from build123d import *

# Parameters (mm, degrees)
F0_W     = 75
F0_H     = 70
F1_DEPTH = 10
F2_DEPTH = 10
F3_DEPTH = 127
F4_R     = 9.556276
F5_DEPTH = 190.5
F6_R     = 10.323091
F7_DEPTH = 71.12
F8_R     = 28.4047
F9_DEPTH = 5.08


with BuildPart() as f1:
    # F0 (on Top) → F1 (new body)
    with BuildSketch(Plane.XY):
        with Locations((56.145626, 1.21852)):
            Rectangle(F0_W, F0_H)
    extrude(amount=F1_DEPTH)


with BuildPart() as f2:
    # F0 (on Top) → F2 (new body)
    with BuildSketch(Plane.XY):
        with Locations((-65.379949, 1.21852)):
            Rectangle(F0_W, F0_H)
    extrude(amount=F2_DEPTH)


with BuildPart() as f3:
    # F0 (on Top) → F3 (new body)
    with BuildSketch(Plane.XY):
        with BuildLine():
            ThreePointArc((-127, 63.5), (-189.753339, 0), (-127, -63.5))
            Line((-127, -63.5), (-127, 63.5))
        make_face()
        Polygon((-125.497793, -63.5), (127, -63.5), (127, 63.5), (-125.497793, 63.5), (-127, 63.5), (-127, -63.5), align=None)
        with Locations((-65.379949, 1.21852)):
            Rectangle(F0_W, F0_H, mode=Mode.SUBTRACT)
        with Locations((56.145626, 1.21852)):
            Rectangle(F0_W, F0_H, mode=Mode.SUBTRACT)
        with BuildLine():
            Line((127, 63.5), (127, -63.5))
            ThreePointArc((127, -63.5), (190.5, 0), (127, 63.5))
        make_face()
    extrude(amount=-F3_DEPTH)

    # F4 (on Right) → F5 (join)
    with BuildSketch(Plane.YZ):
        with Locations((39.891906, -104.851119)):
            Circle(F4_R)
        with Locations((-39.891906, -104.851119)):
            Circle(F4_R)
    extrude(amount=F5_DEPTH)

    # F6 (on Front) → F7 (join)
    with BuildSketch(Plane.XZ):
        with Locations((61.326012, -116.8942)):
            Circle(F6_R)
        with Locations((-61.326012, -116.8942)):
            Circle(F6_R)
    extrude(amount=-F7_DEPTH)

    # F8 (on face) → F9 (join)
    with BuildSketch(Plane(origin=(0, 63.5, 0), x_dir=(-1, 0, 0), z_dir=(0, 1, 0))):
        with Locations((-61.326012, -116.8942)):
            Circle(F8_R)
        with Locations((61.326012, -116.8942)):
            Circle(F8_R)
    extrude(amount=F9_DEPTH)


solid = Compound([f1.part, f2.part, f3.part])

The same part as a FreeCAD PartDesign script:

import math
import FreeCAD as App
import Part
import Sketcher
Q = App.Units.Quantity


def add_polygon(sketch, points):
    """Adds a closed chain of lines whose ends are joined by coincident constraints."""
    first, n = sketch.GeometryCount, len(points)
    for a, b in zip(points, points[1:] + points[:1]):
        sketch.addGeometry(Part.LineSegment(App.Vector(*a, 0), App.Vector(*b, 0)), False)
    for i in range(n):
        sketch.addConstraint(Sketcher.Constraint("Coincident", first + i, 2, first + (i + 1) % n, 1))

doc = App.newDocument("Part")
body = doc.addObject("PartDesign::Body", "Body")

# Sketch on XY plane
sketch1 = body.newObject("Sketcher::SketchObject", "Sketch")
sketch1.AttachmentSupport = (doc.getObject("XY_Plane"), [""])
sketch1.MapMode = "FlatFace"
add_polygon(sketch1, [(18.645626, 36.21852), (18.645626, -33.78148), (93.645626, -33.78148), (93.645626, 36.21852)])  # lines 0-3
sketch1.addConstraint([
    Sketcher.Constraint("Vertical", 0),
    Sketcher.Constraint("Horizontal", 1),
    Sketcher.Constraint("Vertical", 2),
    Sketcher.Constraint("Horizontal", 3),
    Sketcher.Constraint("DistanceX", 1, 1, 1, 2, Q("75 mm")),
    Sketcher.Constraint("DistanceY", 0, 2, 0, 1, Q("70 mm")),
    Sketcher.Constraint("DistanceY", 0, 2, -1, 1, Q("33.78148 mm")),
    Sketcher.Constraint("DistanceX", -1, 1, 0, 2, Q("18.645626 mm")),
])
pad1 = body.newObject("PartDesign::Pad", "Pad")
pad1.Profile = sketch1
pad1.Length = 10
body2 = doc.addObject("PartDesign::Body", "Body001")

# Sketch on XY plane
sketch2 = body2.newObject("Sketcher::SketchObject", "Sketch001")
sketch2.AttachmentSupport = (doc.getObject("XY_Plane001"), [""])
sketch2.MapMode = "FlatFace"
add_polygon(sketch2, [(-102.879949, 36.21852), (-102.879949, -33.78148), (-27.879949, -33.78148), (-27.879949, 36.21852)])  # lines 0-3
sketch2.addConstraint([
    Sketcher.Constraint("Vertical", 0),
    Sketcher.Constraint("Horizontal", 1),
    Sketcher.Constraint("Vertical", 2),
    Sketcher.Constraint("Horizontal", 3),
    Sketcher.Constraint("DistanceX", 1, 1, 1, 2, Q("75 mm")),
    Sketcher.Constraint("DistanceY", 0, 2, 0, 1, Q("70 mm")),
    Sketcher.Constraint("DistanceX", 0, 2, -1, 1, Q("102.879949 mm")),
    Sketcher.Constraint("DistanceY", 0, 2, -1, 1, Q("33.78148 mm")),
])
pad2 = body2.newObject("PartDesign::Pad", "Pad001")
pad2.Profile = sketch2
pad2.Length = 10
body3 = doc.addObject("PartDesign::Body", "Body002")

# Sketch on XY plane
sketch3 = body3.newObject("Sketcher::SketchObject", "Sketch002")
sketch3.AttachmentSupport = (doc.getObject("XY_Plane002"), [""])
sketch3.MapMode = "FlatFace"
sketch3.addGeometry(Part.ArcOfCircle(Part.Circle(App.Vector(-126.248897, 0, 0), App.Vector(0, 0, 1), 63.504442), math.radians(90.677685), math.radians(269.322315)), False)  # 0
sketch3.addGeometry(Part.LineSegment(App.Vector(-127, -63.5, 0), App.Vector(127, -63.5, 0)), False)  # 1
sketch3.addGeometry(Part.ArcOfCircle(Part.Circle(App.Vector(127, 0, 0), App.Vector(0, 0, 1), 63.5), math.radians(-90), math.radians(90)), False)  # 2
sketch3.addGeometry(Part.LineSegment(App.Vector(127, 63.5, 0), App.Vector(-127, 63.5, 0)), False)  # 3
add_polygon(sketch3, [(-27.879949, -33.78148), (-102.879949, -33.78148), (-102.879949, 36.21852), (-27.879949, 36.21852)])  # lines 4-7
add_polygon(sketch3, [(93.645626, -33.78148), (18.645626, -33.78148), (18.645626, 36.21852), (93.645626, 36.21852)])  # lines 8-11
sketch3.addConstraint([
    Sketcher.Constraint("Coincident", 0, 2, 1, 1),
    Sketcher.Constraint("Tangent", 1, 2, 2, 1),
    Sketcher.Constraint("Tangent", 2, 2, 3, 1),
    Sketcher.Constraint("Coincident", 3, 2, 0, 1),
    Sketcher.Constraint("Horizontal", 1),
    Sketcher.Constraint("Horizontal", 3),
    Sketcher.Constraint("Horizontal", 4),
    Sketcher.Constraint("Vertical", 5),
    Sketcher.Constraint("Horizontal", 6),
    Sketcher.Constraint("Vertical", 7),
    Sketcher.Constraint("Horizontal", 8),
    Sketcher.Constraint("Vertical", 9),
    Sketcher.Constraint("Horizontal", 10),
    Sketcher.Constraint("Vertical", 11),
    Sketcher.Constraint("Symmetric", 0, 2, 2, 2, -1, 1),
    Sketcher.Constraint("PointOnObject", 0, 3, -1),
    Sketcher.Constraint("Horizontal", 7, 2, 8, 2),
    Sketcher.Constraint("Horizontal", 6, 2, 9, 2),
    Sketcher.Constraint("Equal", 6, 8),
    Sketcher.Constraint("Radius", 2, Q("2.5 in")),
    Sketcher.Constraint("DistanceX", 1, 1, 1, 2, Q("10 in")),
    Sketcher.Constraint("DistanceX", 4, 2, 4, 1, Q("75 mm")),
    Sketcher.Constraint("DistanceY", 5, 1, 5, 2, Q("70 mm")),
    Sketcher.Constraint("Radius", 0, Q("63.504442 mm")),
    Sketcher.Constraint("DistanceX", 4, 2, -1, 1, Q("102.879949 mm")),
    Sketcher.Constraint("DistanceY", 4, 2, -1, 1, Q("33.78148 mm")),
    Sketcher.Constraint("DistanceX", -1, 1, 8, 2, Q("18.645626 mm")),
])
pad3 = body3.newObject("PartDesign::Pad", "Pad002")
pad3.Profile = sketch3
pad3.Length = Q("5 in")
pad3.Reversed = True

# Sketch on YZ plane
sketch4 = body3.newObject("Sketcher::SketchObject", "Sketch003")
sketch4.AttachmentSupport = (doc.getObject("YZ_Plane002"), [""])
sketch4.MapMode = "FlatFace"
sketch4.addGeometry([
    Part.Circle(App.Vector(39.891906, -104.851119, 0), App.Vector(0, 0, 1), 9.556276),
    Part.Circle(App.Vector(-39.891906, -104.851119, 0), App.Vector(0, 0, 1), 9.556276),
], False)
sketch4.addConstraint([
    Sketcher.Constraint("Equal", 0, 1),
    Sketcher.Constraint("Symmetric", 0, 3, 1, 3, -2),
    Sketcher.Constraint("Diameter", 0, Q("19.112552 mm")),
    Sketcher.Constraint("DistanceY", 0, 3, -1, 1, Q("104.851119 mm")),
    Sketcher.Constraint("DistanceX", 1, 3, 0, 3, Q("79.783812 mm")),
])
pad4 = body3.newObject("PartDesign::Pad", "Pad003")
pad4.Profile = sketch4
pad4.Length = Q("7.5 in")

# Sketch on XZ plane
sketch5 = body3.newObject("Sketcher::SketchObject", "Sketch004")
sketch5.AttachmentSupport = (doc.getObject("XZ_Plane002"), [""])
sketch5.MapMode = "FlatFace"
sketch5.addGeometry([
    Part.Circle(App.Vector(61.326012, -116.8942, 0), App.Vector(0, 0, 1), 10.323091),
    Part.Circle(App.Vector(-61.326012, -116.8942, 0), App.Vector(0, 0, 1), 10.323091),
], False)
sketch5.addConstraint([
    Sketcher.Constraint("Equal", 0, 1),
    Sketcher.Constraint("Symmetric", 0, 3, 1, 3, -2),
    Sketcher.Constraint("Diameter", 0, Q("20.646182 mm")),
    Sketcher.Constraint("DistanceY", 0, 3, -1, 1, Q("116.8942 mm")),
    Sketcher.Constraint("DistanceX", -1, 1, 0, 3, Q("61.326012 mm")),
])
pad5 = body3.newObject("PartDesign::Pad", "Pad004")
pad5.Profile = sketch5
pad5.Length = Q("2.8 in")
pad5.Reversed = True

# Sketch on XZ plane
sketch6 = body3.newObject("Sketcher::SketchObject", "Sketch005")
sketch6.AttachmentSupport = (doc.getObject("XZ_Plane002"), [""])
sketch6.MapMode = "FlatFace"
sketch6.AttachmentOffset = App.Placement(App.Vector(0, 0, -2.5 * 25.4), App.Rotation())
sketch6.addGeometry([
    Part.Circle(App.Vector(61.326012, -116.8942, 0), App.Vector(0, 0, 1), 28.4047),
    Part.Circle(App.Vector(-61.326012, -116.8942, 0), App.Vector(0, 0, 1), 28.4047),
], False)
sketch6.addConstraint([
    Sketcher.Constraint("Equal", 0, 1),
    Sketcher.Constraint("Symmetric", 0, 3, 1, 3, -2),
    Sketcher.Constraint("Diameter", 0, Q("56.8094 mm")),
    Sketcher.Constraint("DistanceY", 0, 3, -1, 1, Q("116.8942 mm")),
    Sketcher.Constraint("DistanceX", -1, 1, 0, 3, Q("61.326012 mm")),
])
pad6 = body3.newObject("PartDesign::Pad", "Pad005")
pad6.Profile = sketch6
pad6.Length = Q("0.2 in")
pad6.Reversed = True

doc.recompute()
